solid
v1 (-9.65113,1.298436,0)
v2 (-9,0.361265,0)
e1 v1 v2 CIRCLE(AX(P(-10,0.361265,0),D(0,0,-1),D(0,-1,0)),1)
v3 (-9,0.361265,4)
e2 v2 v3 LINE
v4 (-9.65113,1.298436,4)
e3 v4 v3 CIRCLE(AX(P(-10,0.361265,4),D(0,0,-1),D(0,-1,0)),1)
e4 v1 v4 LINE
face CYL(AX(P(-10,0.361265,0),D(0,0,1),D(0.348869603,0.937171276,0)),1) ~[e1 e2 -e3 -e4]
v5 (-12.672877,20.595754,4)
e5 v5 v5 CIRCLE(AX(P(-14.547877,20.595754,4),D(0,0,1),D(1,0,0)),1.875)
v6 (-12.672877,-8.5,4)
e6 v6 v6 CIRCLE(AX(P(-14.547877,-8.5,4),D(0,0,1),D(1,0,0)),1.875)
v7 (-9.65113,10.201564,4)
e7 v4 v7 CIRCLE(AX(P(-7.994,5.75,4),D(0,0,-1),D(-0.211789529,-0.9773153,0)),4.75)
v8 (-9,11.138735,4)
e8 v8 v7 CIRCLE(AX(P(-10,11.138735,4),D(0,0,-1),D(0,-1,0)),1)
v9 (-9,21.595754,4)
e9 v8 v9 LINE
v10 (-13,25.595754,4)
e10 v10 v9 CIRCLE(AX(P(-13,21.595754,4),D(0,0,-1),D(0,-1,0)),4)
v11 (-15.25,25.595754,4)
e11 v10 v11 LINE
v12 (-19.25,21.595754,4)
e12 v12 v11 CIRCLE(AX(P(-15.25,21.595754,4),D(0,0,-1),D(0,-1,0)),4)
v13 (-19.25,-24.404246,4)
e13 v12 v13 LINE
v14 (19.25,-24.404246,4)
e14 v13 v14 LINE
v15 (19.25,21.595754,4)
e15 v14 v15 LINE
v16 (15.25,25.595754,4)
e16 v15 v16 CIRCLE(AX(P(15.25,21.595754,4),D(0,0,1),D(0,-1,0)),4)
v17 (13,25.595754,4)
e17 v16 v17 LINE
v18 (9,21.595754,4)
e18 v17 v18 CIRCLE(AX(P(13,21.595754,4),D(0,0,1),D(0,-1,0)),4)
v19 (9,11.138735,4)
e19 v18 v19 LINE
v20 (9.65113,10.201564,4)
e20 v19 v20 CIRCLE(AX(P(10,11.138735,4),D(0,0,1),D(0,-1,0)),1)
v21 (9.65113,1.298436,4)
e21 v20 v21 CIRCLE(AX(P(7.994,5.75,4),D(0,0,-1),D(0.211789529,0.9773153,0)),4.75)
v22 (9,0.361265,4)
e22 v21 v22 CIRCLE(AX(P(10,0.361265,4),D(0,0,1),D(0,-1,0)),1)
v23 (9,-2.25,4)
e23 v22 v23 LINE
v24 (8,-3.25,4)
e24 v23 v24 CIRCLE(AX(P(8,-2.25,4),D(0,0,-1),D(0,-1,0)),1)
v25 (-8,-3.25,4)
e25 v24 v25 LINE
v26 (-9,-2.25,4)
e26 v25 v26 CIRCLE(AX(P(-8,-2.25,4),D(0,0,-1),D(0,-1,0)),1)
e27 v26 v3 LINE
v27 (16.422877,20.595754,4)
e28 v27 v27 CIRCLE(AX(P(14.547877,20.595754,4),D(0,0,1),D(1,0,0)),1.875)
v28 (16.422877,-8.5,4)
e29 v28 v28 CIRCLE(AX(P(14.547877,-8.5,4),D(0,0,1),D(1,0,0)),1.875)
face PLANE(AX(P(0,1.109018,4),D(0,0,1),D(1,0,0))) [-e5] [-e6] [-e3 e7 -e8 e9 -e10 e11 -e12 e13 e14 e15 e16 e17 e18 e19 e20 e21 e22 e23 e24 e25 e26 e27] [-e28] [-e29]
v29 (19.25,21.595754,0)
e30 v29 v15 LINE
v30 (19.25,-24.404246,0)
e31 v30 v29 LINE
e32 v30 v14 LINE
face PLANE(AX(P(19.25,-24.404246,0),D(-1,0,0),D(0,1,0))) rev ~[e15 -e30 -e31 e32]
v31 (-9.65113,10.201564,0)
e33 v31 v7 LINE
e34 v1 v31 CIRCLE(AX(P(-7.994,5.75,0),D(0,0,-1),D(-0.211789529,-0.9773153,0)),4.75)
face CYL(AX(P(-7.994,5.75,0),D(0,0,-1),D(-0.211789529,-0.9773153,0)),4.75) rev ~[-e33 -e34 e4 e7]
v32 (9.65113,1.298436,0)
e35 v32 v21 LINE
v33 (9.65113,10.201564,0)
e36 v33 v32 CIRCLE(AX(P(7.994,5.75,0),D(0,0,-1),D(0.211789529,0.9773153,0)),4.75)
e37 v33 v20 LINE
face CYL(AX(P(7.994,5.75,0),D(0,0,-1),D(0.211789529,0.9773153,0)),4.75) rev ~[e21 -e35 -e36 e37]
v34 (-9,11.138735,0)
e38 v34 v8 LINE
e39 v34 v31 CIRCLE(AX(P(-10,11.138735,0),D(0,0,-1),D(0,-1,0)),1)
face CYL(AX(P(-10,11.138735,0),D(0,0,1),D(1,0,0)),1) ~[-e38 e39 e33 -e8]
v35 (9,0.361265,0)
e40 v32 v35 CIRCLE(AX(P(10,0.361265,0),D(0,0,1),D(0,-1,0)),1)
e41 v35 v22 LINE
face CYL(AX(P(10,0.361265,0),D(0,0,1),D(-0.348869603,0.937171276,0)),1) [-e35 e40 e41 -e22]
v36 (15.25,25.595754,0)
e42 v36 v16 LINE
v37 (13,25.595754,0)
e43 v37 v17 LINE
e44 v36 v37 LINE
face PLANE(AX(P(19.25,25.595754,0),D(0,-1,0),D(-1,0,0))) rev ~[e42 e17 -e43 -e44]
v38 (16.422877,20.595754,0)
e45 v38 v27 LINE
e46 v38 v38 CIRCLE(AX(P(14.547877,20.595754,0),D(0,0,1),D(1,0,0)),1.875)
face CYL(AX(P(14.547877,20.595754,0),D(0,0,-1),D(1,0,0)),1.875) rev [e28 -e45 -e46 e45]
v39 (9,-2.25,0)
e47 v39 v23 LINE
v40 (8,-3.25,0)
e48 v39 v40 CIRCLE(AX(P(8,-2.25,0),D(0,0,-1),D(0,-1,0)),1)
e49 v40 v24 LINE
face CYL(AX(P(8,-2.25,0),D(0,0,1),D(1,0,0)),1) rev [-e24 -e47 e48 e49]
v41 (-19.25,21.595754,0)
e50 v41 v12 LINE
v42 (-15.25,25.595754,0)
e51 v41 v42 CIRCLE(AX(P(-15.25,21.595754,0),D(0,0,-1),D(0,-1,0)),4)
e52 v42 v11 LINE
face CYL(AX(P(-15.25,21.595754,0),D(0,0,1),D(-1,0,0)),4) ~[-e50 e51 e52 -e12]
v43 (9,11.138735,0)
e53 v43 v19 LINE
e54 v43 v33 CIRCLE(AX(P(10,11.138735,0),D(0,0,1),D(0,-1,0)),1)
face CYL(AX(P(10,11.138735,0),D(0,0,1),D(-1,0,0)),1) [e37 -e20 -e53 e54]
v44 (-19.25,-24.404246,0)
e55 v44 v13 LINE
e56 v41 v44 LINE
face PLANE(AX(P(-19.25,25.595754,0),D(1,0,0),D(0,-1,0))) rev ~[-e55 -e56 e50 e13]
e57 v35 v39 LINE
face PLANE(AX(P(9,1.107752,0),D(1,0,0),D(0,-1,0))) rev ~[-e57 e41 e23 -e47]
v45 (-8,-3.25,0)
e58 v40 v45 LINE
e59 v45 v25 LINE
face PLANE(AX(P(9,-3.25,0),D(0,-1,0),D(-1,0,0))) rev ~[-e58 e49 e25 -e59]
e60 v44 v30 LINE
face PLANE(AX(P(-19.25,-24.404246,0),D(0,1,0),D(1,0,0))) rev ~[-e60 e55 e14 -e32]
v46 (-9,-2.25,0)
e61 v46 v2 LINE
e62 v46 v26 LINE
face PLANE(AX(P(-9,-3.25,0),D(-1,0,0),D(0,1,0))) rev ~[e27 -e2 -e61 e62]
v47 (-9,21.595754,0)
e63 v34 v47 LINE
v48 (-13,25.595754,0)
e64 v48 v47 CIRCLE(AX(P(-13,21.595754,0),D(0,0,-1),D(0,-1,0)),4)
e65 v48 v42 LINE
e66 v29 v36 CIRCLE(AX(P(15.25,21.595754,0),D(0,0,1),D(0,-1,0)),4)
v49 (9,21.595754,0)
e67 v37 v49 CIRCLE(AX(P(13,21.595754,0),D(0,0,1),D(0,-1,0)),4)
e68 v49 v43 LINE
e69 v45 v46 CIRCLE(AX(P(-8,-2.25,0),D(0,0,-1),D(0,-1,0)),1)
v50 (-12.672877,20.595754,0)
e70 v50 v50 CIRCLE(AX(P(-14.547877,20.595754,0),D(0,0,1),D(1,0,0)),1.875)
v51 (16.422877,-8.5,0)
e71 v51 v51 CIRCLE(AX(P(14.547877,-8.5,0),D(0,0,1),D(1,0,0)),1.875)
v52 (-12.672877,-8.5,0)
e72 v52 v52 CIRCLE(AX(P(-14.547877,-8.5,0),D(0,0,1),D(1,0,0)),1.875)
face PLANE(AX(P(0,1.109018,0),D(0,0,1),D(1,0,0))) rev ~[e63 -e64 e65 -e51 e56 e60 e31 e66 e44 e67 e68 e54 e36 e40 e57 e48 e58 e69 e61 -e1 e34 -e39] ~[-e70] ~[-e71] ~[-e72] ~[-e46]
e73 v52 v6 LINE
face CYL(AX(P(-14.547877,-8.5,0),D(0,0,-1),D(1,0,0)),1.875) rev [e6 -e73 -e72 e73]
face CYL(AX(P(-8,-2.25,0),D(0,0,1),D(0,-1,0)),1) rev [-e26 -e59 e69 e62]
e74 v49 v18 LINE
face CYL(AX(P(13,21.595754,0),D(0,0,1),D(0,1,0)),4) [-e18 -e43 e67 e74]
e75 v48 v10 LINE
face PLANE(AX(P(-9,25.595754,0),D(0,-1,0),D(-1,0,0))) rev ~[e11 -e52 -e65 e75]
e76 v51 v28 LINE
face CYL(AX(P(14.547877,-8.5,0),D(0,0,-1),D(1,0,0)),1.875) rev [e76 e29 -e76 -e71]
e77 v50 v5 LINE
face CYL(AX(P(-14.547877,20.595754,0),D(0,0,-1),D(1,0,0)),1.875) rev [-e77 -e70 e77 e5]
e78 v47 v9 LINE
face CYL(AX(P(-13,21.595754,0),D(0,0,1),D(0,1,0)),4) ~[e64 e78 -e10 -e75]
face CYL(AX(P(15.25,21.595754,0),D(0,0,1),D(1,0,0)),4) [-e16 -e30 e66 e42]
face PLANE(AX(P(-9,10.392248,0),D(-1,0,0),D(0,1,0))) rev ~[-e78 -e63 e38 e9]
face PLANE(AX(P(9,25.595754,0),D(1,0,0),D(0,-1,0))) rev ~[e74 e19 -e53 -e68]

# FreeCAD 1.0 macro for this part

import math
import FreeCAD as App
import Part
import Sketcher
from FreeCAD import Vector
Q = App.Units.Quantity


def edges_at(feature, points):
    """Names of the edges that pass closest to the given points."""
    edges = feature.Shape.Edges
    near = lambda p: min(range(len(edges)), key=lambda i: edges[i].distToShape(Part.Vertex(*p))[0])
    return sorted({f"Edge{near(p) + 1}" for p in points})

doc = App.newDocument("Part")
body = doc.addObject("PartDesign::Body", "Body")

sketch1 = body.newObject("Sketcher::SketchObject", "Sketch")
sketch1.AttachmentSupport = (doc.getObject("XY_Plane"), [""])
sketch1.MapMode = "FlatFace"
sketch1.addGeometry([
    Part.LineSegment(Vector(19.2, -24.4, 0), Vector(19.2, 25.6, 0)),
    Part.LineSegment(Vector(19.2, 25.6, 0), Vector(9, 25.6, 0)),
    Part.LineSegment(Vector(9, 25.6, 0), Vector(9, 10.4, 0)),
    Part.ArcOfCircle(Part.Circle(Vector(8, 5.8, 0), Vector(0, 0, 1), 4.8), math.radians(-78), math.radians(78)),
    Part.LineSegment(Vector(9, 1.1, 0), Vector(9, -3.2, 0)),
    Part.LineSegment(Vector(9, -3.2, 0), Vector(-9, -3.2, 0)),
    Part.LineSegment(Vector(-9, -3.2, 0), Vector(-9, 1.1, 0)),
    Part.ArcOfCircle(Part.Circle(Vector(-8, 5.8, 0), Vector(0, 0, 1), 4.8), math.radians(102), math.radians(258)),
    Part.LineSegment(Vector(-9, 10.4, 0), Vector(-9, 25.6, 0)),
    Part.LineSegment(Vector(-9, 25.6, 0), Vector(-19.2, 25.6, 0)),
    Part.LineSegment(Vector(-19.2, 25.6, 0), Vector(-19.2, -24.4, 0)),
    Part.LineSegment(Vector(-19.2, -24.4, 0), Vector(19.2, -24.4, 0)),
    Part.Circle(Vector(-14.5, -8.5, 0), Vector(0, 0, 1), 1.9),
    Part.Circle(Vector(14.5, -8.5, 0), Vector(0, 0, 1), 1.9),
    Part.Circle(Vector(-14.5, 20.6, 0), Vector(0, 0, 1), 1.9),
    Part.Circle(Vector(14.5, 20.6, 0), Vector(0, 0, 1), 1.9),
], False)
sketch1.addConstraint([
    Sketcher.Constraint("Coincident", 0, 2, 1, 1),
    Sketcher.Constraint("Coincident", 1, 2, 2, 1),
    Sketcher.Constraint("Coincident", 2, 2, 3, 2),
    Sketcher.Constraint("Coincident", 3, 1, 4, 1),
    Sketcher.Constraint("Coincident", 4, 2, 5, 1),
    Sketcher.Constraint("Coincident", 5, 2, 6, 1),
    Sketcher.Constraint("Coincident", 6, 2, 7, 2),
    Sketcher.Constraint("Coincident", 7, 1, 8, 1),
    Sketcher.Constraint("Coincident", 8, 2, 9, 1),
    Sketcher.Constraint("Coincident", 9, 2, 10, 1),
    Sketcher.Constraint("Coincident", 10, 2, 11, 1),
    Sketcher.Constraint("Coincident", 11, 2, 0, 1),
    Sketcher.Constraint("Vertical", 0),
    Sketcher.Constraint("Horizontal", 1),
    Sketcher.Constraint("Vertical", 2),
    Sketcher.Constraint("Vertical", 4),
    Sketcher.Constraint("Horizontal", 5),
    Sketcher.Constraint("Vertical", 6),
    Sketcher.Constraint("Vertical", 8),
    Sketcher.Constraint("Horizontal", 9),
    Sketcher.Constraint("Vertical", 10),
    Sketcher.Constraint("Horizontal", 11),
    Sketcher.Constraint("Equal", 3, 7),
    Sketcher.Constraint("Equal", 12, 13),
    Sketcher.Constraint("Equal", 13, 14),
    Sketcher.Constraint("Equal", 14, 15),
    Sketcher.Constraint("Symmetric", 3, 3, 7, 3, -2),
    Sketcher.Constraint("Symmetric", 12, 3, 13, 3, -2),
    Sketcher.Constraint("Symmetric", 14, 3, 15, 3, -2),
    Sketcher.Constraint("Symmetric", 1, 2, 8, 2, -2),
    Sketcher.Constraint("Horizontal", 3, 1, 6, 2),
    Sketcher.Constraint("Vertical", 12, 3, 14, 3),
    Sketcher.Constraint("Vertical", 2, 2, 3, 1),
    Sketcher.Constraint("Equal", 1, 9),
    Sketcher.Constraint("Diameter", 12, Q("3.75 mm")),
    Sketcher.Constraint("DistanceX", 5, 2, 5, 1, Q("18 mm")),
    Sketcher.Constraint("DistanceY", 0, 1, 0, 2, Q("50 mm")),
    Sketcher.Constraint("Radius", 3, Q("4.75 mm")),
    Sketcher.Constraint("DistanceX", 11, 1, 11, 2, Q("38.5 mm")),
    Sketcher.Constraint("DistanceY", 15, 3, 0, 2, Q("5 mm")),
    Sketcher.Constraint("DistanceY", 4, 2, 3, 3, Q("9 mm")),
    Sketcher.Constraint("DistanceY", 12, 3, -1, 1, Q("8.5 mm")),
    Sketcher.Constraint("DistanceY", -1, 1, 3, 3, Q("5.75 mm")),
    Sketcher.Constraint("DistanceX", -1, 1, 3, 3, Q("7.994 mm")),
    Sketcher.Constraint("DistanceY", 6, 2, 9, 2, Q("24.488002 mm")),
    Sketcher.Constraint("DistanceX", 12, 3, -1, 1, Q("14.547877 mm")),
])
pad1 = body.newObject("PartDesign::Pad", "Pad")
pad1.Profile = sketch1
pad1.Length = 4
doc.recompute()

fillet = body.newObject("PartDesign::Fillet", "Fillet")
fillet.Base = (pad1, edges_at(pad1, [
    (19.25, 25.596, 2),
    (-19.25, 25.596, 2),
    (-9, 25.596, 2),
    (9, 25.596, 2),
]))
fillet.Radius = 4
doc.recompute()

fillet2 = body.newObject("PartDesign::Fillet", "Fillet001")
fillet2.Base = (fillet, edges_at(fillet, [
    (-9, 10.392, 2),
    (-9, 1.108, 2),
    (-9, -3.25, 2),
    (9, -3.25, 2),
    (9, 1.108, 2),
    (9, 10.392, 2),
]))
fillet2.Radius = 1

doc.recompute()
